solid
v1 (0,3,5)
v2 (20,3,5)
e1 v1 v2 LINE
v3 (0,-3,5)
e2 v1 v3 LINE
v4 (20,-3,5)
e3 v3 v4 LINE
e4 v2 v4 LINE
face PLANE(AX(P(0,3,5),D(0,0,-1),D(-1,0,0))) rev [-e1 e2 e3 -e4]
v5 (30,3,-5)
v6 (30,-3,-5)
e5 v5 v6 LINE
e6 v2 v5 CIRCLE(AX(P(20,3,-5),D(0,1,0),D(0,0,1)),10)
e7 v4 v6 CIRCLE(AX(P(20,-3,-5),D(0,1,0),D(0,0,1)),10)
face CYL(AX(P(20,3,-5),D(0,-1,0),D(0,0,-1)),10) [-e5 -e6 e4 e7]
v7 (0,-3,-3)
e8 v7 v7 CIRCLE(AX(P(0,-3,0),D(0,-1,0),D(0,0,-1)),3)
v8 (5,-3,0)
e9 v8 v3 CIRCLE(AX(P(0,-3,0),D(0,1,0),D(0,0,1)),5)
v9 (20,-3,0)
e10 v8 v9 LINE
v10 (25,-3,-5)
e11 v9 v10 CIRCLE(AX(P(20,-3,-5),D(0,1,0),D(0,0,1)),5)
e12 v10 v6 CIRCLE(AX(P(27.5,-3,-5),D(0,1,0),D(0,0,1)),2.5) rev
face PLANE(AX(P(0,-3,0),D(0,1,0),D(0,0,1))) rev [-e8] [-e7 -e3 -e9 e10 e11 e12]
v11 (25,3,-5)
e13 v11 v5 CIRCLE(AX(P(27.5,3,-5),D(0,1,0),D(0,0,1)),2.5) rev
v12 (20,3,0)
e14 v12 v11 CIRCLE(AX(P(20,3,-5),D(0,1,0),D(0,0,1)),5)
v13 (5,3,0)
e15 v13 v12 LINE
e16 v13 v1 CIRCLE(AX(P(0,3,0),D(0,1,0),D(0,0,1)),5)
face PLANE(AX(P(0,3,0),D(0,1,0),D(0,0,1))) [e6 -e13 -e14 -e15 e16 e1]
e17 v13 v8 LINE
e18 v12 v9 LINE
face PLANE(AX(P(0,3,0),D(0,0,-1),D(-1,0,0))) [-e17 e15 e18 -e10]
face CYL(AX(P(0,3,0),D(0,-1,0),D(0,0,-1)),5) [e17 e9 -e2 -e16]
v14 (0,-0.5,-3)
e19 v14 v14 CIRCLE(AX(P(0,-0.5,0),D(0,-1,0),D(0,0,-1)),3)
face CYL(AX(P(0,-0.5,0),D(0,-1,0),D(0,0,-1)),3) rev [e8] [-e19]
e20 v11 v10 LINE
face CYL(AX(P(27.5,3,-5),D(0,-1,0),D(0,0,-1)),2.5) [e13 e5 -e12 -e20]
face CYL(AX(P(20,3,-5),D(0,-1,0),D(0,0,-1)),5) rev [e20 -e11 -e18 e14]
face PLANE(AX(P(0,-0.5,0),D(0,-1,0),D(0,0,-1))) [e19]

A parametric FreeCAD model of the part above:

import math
import FreeCAD as App
import Part
import Sketcher
from FreeCAD import Vector
Q = App.Units.Quantity

doc = App.newDocument("Part")
body = doc.addObject("PartDesign::Body", "Body")

# Sketch on XZ plane
sketch1 = doc.addObject("Sketcher::SketchObject", "Sketch")
body.addObject(sketch1)
sketch1.AttachmentSupport = (doc.XZ_Plane, [""])
sketch1.MapMode = "FlatFace"
sketch1.addGeometry(Part.ArcOfCircle(Part.Circle(Vector(0, 0, 0), Vector(0, 0, 1), 5), math.radians(90), math.radians(360)), False)
sketch1.addGeometry(Part.LineSegment(Vector(0, 5, 0), Vector(20, 5, 0)), False)
sketch1.addGeometry(Part.ArcOfCircle(Part.Circle(Vector(20, -5, 0), Vector(0, 0, 1), 10), math.radians(0), math.radians(90)), False)
sketch1.addGeometry(Part.ArcOfCircle(Part.Circle(Vector(27.5, -5, 0), Vector(0, 0, 1), 2.5), math.radians(180), math.radians(360)), False)
sketch1.addGeometry(Part.ArcOfCircle(Part.Circle(Vector(20, -5, 0), Vector(0, 0, 1), 5), math.radians(0), math.radians(90)), False)
sketch1.addGeometry(Part.LineSegment(Vector(20, 0, 0), Vector(5, 0, 0)), False)
sketch1.addConstraint(Sketcher.Constraint("Tangent", 0, 1, 1, 1))
sketch1.addConstraint(Sketcher.Constraint("Tangent", 1, 2, 2, 2))
sketch1.addConstraint(Sketcher.Constraint("Tangent", 2, 1, 3, 2))
sketch1.addConstraint(Sketcher.Constraint("Tangent", 3, 1, 4, 1))
sketch1.addConstraint(Sketcher.Constraint("Tangent", 4, 2, 5, 1))
sketch1.addConstraint(Sketcher.Constraint("Coincident", 5, 2, 0, 2))
sketch1.addConstraint(Sketcher.Constraint("Horizontal", 1))
sketch1.addConstraint(Sketcher.Constraint("Horizontal", 5))
sketch1.addConstraint(Sketcher.Constraint("Coincident", 0, 3, -1, 1))
sketch1.addConstraint(Sketcher.Constraint("Coincident", 4, 3, 2, 3))
sketch1.addConstraint(Sketcher.Constraint("Equal", 0, 4))
sketch1.addConstraint(Sketcher.Constraint("PointOnObject", 4, 2, -1))
sketch1.addConstraint(Sketcher.Constraint("Horizontal", 2, 3, 3, 3))
sketch1.addConstraint(Sketcher.Constraint("Radius", 0, Q("5 mm")))
sketch1.addConstraint(Sketcher.Constraint("DistanceX", 1, 1, 1, 2, Q("20 mm")))
pad1 = doc.addObject("PartDesign::Pad", "Pad")
body.addObject(pad1)
pad1.Profile = sketch1
pad1.Length = 6
pad1.Midplane = True

# Sketch on XZ plane
sketch2 = doc.addObject("Sketcher::SketchObject", "Sketch001")
body.addObject(sketch2)
sketch2.AttachmentSupport = (doc.XZ_Plane, [""])
sketch2.MapMode = "FlatFace"
sketch2.AttachmentOffset = App.Placement(Vector(0, 0, 3), App.Rotation())
sketch2.addGeometry(Part.Circle(Vector(0, 0, 0), Vector(0, 0, 1), 3), False)
sketch2.addConstraint(Sketcher.Constraint("Coincident", 0, 3, -1, 1))
sketch2.addConstraint(Sketcher.Constraint("Diameter", 0, Q("6 mm")))
pocket1 = doc.addObject("PartDesign::Pocket", "Pocket")
body.addObject(pocket1)
pocket1.Profile = sketch2
pocket1.Length = 2.5

doc.recompute()
